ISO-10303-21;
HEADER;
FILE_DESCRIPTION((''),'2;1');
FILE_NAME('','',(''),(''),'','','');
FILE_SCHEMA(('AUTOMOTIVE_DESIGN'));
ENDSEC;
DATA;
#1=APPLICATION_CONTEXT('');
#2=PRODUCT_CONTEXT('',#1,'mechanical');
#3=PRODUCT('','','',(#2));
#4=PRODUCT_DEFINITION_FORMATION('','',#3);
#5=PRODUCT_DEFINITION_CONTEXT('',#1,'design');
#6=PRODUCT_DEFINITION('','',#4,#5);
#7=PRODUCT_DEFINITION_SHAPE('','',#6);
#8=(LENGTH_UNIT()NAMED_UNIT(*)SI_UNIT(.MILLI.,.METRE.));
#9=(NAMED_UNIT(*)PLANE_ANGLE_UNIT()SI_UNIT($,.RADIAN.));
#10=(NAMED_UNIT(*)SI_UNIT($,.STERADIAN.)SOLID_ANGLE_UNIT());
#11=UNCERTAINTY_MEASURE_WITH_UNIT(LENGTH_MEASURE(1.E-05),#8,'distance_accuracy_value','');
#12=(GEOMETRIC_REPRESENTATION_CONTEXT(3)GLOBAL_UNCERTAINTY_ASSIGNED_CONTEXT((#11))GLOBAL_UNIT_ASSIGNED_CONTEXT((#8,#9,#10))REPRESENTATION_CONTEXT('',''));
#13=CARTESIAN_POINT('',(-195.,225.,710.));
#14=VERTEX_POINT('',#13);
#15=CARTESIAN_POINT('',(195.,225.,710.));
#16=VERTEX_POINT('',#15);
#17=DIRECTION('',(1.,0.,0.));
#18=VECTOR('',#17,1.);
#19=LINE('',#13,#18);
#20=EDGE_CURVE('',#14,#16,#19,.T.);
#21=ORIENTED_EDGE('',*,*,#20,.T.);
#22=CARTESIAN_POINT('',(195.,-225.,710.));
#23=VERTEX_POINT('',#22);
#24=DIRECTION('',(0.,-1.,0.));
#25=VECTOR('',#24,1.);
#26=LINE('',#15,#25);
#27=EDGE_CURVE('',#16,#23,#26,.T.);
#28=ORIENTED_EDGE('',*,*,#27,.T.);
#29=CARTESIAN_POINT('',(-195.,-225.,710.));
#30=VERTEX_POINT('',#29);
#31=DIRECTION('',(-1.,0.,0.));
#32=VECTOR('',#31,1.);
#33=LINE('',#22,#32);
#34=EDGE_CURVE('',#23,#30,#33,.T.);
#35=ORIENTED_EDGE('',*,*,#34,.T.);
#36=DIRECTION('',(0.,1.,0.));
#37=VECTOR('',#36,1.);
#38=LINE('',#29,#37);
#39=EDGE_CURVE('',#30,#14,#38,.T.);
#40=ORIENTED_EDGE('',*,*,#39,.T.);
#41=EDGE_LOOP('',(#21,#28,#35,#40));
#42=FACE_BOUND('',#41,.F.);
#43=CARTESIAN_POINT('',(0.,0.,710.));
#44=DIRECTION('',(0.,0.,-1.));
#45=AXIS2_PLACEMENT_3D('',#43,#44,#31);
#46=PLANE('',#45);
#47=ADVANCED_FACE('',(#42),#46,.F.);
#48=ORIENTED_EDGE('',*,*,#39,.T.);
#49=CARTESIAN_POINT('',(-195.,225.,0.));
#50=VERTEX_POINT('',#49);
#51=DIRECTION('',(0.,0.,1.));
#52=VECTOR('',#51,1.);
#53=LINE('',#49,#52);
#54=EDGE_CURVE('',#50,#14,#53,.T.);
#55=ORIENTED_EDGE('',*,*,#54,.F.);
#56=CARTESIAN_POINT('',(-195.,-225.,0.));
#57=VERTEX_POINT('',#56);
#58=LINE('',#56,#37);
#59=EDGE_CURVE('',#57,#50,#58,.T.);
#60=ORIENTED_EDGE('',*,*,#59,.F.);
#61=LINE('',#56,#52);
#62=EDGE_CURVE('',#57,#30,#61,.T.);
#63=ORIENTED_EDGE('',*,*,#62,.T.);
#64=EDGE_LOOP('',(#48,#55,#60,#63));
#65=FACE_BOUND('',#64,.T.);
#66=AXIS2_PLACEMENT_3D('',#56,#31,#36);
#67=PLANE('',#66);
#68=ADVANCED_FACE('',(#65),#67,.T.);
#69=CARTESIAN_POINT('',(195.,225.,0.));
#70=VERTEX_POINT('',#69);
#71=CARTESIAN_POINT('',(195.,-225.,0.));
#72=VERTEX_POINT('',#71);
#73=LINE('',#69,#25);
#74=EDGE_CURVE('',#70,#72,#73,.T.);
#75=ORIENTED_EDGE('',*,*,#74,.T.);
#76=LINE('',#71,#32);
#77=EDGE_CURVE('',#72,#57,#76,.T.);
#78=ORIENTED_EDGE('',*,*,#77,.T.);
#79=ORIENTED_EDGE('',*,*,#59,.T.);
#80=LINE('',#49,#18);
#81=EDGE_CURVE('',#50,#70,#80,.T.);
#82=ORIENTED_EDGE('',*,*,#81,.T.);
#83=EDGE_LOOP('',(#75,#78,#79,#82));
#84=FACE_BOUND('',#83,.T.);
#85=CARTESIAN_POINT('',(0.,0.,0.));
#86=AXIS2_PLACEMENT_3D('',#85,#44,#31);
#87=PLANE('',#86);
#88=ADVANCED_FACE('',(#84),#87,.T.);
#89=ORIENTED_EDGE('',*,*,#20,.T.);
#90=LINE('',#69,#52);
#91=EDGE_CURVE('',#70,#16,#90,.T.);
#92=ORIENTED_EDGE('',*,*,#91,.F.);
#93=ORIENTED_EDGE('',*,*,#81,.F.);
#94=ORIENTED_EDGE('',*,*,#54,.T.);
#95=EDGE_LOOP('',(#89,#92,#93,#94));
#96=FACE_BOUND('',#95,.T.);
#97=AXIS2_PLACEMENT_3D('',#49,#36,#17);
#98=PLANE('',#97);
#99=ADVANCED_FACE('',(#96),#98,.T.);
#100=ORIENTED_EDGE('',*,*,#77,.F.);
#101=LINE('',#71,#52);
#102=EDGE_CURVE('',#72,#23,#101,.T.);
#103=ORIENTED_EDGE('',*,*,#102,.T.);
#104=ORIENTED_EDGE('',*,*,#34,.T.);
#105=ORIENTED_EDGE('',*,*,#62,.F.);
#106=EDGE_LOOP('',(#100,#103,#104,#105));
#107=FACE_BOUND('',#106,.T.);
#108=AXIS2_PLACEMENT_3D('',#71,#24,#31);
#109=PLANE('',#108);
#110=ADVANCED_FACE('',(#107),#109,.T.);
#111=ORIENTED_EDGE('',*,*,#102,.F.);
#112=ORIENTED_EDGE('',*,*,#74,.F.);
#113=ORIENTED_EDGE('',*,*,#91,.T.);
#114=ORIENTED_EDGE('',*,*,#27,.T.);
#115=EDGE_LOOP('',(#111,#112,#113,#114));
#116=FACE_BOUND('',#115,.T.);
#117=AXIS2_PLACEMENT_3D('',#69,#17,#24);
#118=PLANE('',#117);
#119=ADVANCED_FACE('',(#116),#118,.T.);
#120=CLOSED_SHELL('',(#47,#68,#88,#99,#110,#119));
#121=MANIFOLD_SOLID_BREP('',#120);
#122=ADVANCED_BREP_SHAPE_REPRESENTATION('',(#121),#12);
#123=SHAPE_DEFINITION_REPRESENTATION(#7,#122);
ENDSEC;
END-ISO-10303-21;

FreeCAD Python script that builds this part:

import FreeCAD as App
import Part
import Sketcher
from FreeCAD import Vector

doc = App.newDocument("Part")
body = doc.addObject("PartDesign::Body", "Body")

# Sketch on XY plane
sketch1 = doc.addObject("Sketcher::SketchObject", "Sketch")
body.addObject(sketch1)
sketch1.AttachmentSupport = (doc.XY_Plane, [""])
sketch1.MapMode = "FlatFace"
sketch1.addGeometry([
    Part.LineSegment(Vector(195, 225, 0), Vector(195, -225, 0)),
    Part.LineSegment(Vector(195, -225, 0), Vector(-195, -225, 0)),
    Part.LineSegment(Vector(-195, -225, 0), Vector(-195, 225, 0)),
    Part.LineSegment(Vector(-195, 225, 0), Vector(195, 225, 0)),
], False)
sketch1.addConstraint([
    Sketcher.Constraint("Coincident", 0, 2, 1, 1),
    Sketcher.Constraint("Coincident", 1, 2, 2, 1),
    Sketcher.Constraint("Coincident", 2, 2, 3, 1),
    Sketcher.Constraint("Coincident", 3, 2, 0, 1),
    Sketcher.Constraint("Vertical", 0),
    Sketcher.Constraint("Horizontal", 1),
    Sketcher.Constraint("Vertical", 2),
    Sketcher.Constraint("Horizontal", 3),
    Sketcher.Constraint("Symmetric", 0, 2, 2, 2, -1, 1),
    Sketcher.Constraint("DistanceX", 1, 2, 1, 1, 390.0),
    Sketcher.Constraint("DistanceY", 0, 2, 0, 1, 450.0),
])
pad1 = doc.addObject("PartDesign::Pad", "Pad")
body.addObject(pad1)
pad1.Profile = sketch1
pad1.Length = 710

doc.recompute()
